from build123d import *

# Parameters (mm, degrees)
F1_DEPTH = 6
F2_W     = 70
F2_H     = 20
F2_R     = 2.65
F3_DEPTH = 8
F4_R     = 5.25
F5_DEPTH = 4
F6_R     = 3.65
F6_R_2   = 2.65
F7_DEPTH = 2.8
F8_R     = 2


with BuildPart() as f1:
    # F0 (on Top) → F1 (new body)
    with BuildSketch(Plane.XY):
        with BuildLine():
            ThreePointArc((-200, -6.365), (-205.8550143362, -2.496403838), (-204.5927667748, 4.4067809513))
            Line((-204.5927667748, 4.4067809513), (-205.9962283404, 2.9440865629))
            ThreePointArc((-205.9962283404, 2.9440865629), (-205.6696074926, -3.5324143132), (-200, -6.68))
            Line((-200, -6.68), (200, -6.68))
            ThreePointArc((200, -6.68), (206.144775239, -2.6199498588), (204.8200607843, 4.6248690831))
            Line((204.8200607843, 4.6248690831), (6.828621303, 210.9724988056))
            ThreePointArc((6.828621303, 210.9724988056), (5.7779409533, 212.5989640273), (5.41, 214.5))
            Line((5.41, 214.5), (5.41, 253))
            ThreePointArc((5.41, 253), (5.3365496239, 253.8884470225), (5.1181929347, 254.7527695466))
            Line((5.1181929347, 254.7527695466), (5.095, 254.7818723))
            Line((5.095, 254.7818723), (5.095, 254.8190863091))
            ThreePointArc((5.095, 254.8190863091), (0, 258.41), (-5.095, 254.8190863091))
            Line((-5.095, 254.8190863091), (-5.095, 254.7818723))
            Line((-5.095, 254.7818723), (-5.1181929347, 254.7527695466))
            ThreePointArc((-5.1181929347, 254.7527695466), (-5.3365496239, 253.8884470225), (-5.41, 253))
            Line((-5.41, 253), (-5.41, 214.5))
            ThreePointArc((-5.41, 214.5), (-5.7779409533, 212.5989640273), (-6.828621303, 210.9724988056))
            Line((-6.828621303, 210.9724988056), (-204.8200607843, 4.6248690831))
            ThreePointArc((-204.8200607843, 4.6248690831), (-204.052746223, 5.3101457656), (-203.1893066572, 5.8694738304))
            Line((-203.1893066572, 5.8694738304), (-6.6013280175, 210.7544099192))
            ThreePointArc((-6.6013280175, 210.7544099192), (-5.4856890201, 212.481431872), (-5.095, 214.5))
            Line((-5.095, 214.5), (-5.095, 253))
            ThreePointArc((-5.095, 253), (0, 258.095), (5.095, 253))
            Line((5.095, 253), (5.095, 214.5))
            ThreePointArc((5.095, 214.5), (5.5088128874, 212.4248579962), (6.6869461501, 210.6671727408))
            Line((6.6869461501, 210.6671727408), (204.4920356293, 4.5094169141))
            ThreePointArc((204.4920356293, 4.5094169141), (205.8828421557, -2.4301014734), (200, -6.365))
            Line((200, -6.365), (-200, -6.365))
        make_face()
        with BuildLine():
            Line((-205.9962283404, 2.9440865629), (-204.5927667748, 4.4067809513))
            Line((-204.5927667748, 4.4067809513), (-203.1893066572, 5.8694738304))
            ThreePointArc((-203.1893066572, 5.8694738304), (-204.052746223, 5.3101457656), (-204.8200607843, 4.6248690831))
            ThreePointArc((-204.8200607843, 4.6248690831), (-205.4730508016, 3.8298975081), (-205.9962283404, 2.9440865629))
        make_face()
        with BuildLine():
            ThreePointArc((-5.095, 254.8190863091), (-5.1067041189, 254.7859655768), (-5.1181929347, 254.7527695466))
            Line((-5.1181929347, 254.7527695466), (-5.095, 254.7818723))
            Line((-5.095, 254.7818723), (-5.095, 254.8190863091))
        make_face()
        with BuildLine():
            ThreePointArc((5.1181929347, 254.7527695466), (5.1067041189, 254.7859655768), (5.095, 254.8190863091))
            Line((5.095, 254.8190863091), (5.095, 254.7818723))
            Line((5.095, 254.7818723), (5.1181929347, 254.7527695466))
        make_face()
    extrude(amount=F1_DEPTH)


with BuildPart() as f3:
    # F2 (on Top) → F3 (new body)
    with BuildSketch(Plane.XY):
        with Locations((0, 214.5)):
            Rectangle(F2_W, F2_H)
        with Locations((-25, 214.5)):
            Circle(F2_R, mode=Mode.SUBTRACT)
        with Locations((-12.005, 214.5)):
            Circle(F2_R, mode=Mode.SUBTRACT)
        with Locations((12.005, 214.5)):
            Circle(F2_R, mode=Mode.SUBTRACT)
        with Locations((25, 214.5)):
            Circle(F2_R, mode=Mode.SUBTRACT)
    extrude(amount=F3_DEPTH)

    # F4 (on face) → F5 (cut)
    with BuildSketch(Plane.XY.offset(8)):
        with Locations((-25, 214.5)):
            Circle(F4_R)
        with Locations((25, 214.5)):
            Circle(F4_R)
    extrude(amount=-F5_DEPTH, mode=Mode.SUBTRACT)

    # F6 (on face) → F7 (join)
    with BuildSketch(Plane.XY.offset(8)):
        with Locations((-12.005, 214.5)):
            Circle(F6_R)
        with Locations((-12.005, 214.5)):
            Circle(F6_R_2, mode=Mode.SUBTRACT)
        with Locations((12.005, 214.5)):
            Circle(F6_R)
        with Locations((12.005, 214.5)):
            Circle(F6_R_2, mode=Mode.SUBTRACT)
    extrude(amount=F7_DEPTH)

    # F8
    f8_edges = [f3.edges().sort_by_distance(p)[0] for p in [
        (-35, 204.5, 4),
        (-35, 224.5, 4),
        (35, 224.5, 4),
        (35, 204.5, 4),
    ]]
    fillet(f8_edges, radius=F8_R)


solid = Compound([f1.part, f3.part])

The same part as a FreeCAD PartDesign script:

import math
import FreeCAD as App
import Part
import Sketcher
Q = App.Units.Quantity


def edges_at(feature, points):
    """Names of the edges that pass closest to the given points."""
    edges = feature.Shape.Edges
    near = lambda p: min(range(len(edges)), key=lambda i: edges[i].distToShape(Part.Vertex(*p))[0])
    return sorted({f"Edge{near(p) + 1}" for p in points})

doc = App.newDocument("Part")
body = doc.addObject("PartDesign::Body", "Body")

# Sketch on XY plane
sketch1 = body.newObject("Sketcher::SketchObject", "Sketch")
sketch1.AttachmentSupport = (doc.getObject("XY_Plane"), [""])
sketch1.MapMode = "FlatFace"
sketch1.addGeometry(Part.ArcOfCircle(Part.Circle(App.Vector(-200, 0, 0), App.Vector(0, 0, 1), 6.68), math.radians(154), math.radians(270)), False)
sketch1.addGeometry(Part.LineSegment(App.Vector(-200, -6.68, 0), App.Vector(200, -6.68, 0)), False)
sketch1.addGeometry(Part.ArcOfCircle(Part.Circle(App.Vector(200, 0, 0), App.Vector(0, 0, 1), 6.68), math.radians(-90), math.radians(44)), False)
sketch1.addGeometry(Part.LineSegment(App.Vector(204.82, 4.62, 0), App.Vector(6.83, 210.97, 0)), False)
sketch1.addGeometry(Part.ArcOfCircle(Part.Circle(App.Vector(10.51, 214.5, 0), App.Vector(0, 0, 1), 5.09), math.radians(180), math.radians(224)), False)
sketch1.addGeometry(Part.LineSegment(App.Vector(5.41, 214.5, 0), App.Vector(5.41, 253, 0)), False)
sketch1.addGeometry(Part.ArcOfCircle(Part.Circle(App.Vector(0, 253, 0), App.Vector(0, 0, 1), 5.41), math.radians(0), math.radians(18.9)), False)
sketch1.addGeometry(Part.ArcOfCircle(Part.Circle(App.Vector(0, 253, 0), App.Vector(0, 0, 1), 5.41), math.radians(18.9), math.radians(19.65)), False)
sketch1.addGeometry(Part.ArcOfCircle(Part.Circle(App.Vector(0, 253, 0), App.Vector(0, 0, 1), 5.41), math.radians(20), math.radians(160)), False)
sketch1.addGeometry(Part.ArcOfCircle(Part.Circle(App.Vector(0, 253, 0), App.Vector(0, 0, 1), 5.41), math.radians(160.35), math.radians(161.1)), False)
sketch1.addGeometry(Part.ArcOfCircle(Part.Circle(App.Vector(0, 253, 0), App.Vector(0, 0, 1), 5.41), math.radians(161.1), math.radians(180)), False)
sketch1.addGeometry(Part.LineSegment(App.Vector(-5.41, 253, 0), App.Vector(-5.41, 214.5, 0)), False)
sketch1.addGeometry(Part.ArcOfCircle(Part.Circle(App.Vector(-10.51, 214.5, 0), App.Vector(0, 0, 1), 5.09), math.radians(-44), math.radians(0)), False)
sketch1.addGeometry(Part.LineSegment(App.Vector(-6.83, 210.97, 0), App.Vector(-204.82, 4.62, 0)), False)
sketch1.addGeometry(Part.ArcOfCircle(Part.Circle(App.Vector(-200, 0, 0), App.Vector(0, 0, 1), 6.68), math.radians(136.18), math.radians(153.85)), False)
sketch1.addGeometry(Part.ArcOfCircle(Part.Circle(App.Vector(-200, 0, 0), App.Vector(0, 0, 1), 6.37), math.radians(136), math.radians(270)), False)
sketch1.addGeometry(Part.LineSegment(App.Vector(-204.59, 4.41, 0), App.Vector(-203.19, 5.87, 0)), False)
sketch1.addGeometry(Part.LineSegment(App.Vector(-203.19, 5.87, 0), App.Vector(-6.6, 210.75, 0)), False)
sketch1.addGeometry(Part.ArcOfCircle(Part.Circle(App.Vector(-10.51, 214.5, 0), App.Vector(0, 0, 1), 5.41), math.radians(-44), math.radians(0)), False)
sketch1.addGeometry(Part.LineSegment(App.Vector(-5.09, 214.5, 0), App.Vector(-5.09, 253, 0)), False)
sketch1.addGeometry(Part.ArcOfCircle(Part.Circle(App.Vector(0, 253, 0), App.Vector(0, 0, 1), 5.09), math.radians(0), math.radians(180)), False)
sketch1.addGeometry(Part.LineSegment(App.Vector(5.09, 253, 0), App.Vector(5.09, 214.5, 0)), False)
sketch1.addGeometry(Part.ArcOfCircle(Part.Circle(App.Vector(10.51, 214.5, 0), App.Vector(0, 0, 1), 5.41), math.radians(180), math.radians(225)), False)
sketch1.addGeometry(Part.LineSegment(App.Vector(6.69, 210.67, 0), App.Vector(204.49, 4.51, 0)), False)
sketch1.addGeometry(Part.ArcOfCircle(Part.Circle(App.Vector(200, 0, 0), App.Vector(0, 0, 1), 6.37), math.radians(-90), math.radians(45)), False)
sketch1.addGeometry(Part.LineSegment(App.Vector(200, -6.37, 0), App.Vector(-200, -6.37, 0)), False)
sketch1.addConstraint(Sketcher.Constraint("Tangent", 0, 2, 1, 1))
sketch1.addConstraint(Sketcher.Constraint("Tangent", 1, 2, 2, 1))
sketch1.addConstraint(Sketcher.Constraint("Tangent", 2, 2, 3, 1))
sketch1.addConstraint(Sketcher.Constraint("Tangent", 3, 2, 4, 2))
sketch1.addConstraint(Sketcher.Constraint("Tangent", 4, 1, 5, 1))
sketch1.addConstraint(Sketcher.Constraint("Tangent", 5, 2, 6, 1))
sketch1.addConstraint(Sketcher.Constraint("Tangent", 6, 2, 7, 1))
sketch1.addConstraint(Sketcher.Constraint("Tangent", 7, 2, 8, 1))
sketch1.addConstraint(Sketcher.Constraint("Tangent", 8, 2, 9, 1))
sketch1.addConstraint(Sketcher.Constraint("Tangent", 9, 2, 10, 1))
sketch1.addConstraint(Sketcher.Constraint("Tangent", 10, 2, 11, 1))
sketch1.addConstraint(Sketcher.Constraint("Tangent", 11, 2, 12, 2))
sketch1.addConstraint(Sketcher.Constraint("Tangent", 12, 1, 13, 1))
sketch1.addConstraint(Sketcher.Constraint("Tangent", 13, 2, 14, 1))
sketch1.addConstraint(Sketcher.Constraint("Tangent", 14, 2, 0, 1))
sketch1.addConstraint(Sketcher.Constraint("Tangent", 15, 1, 16, 1))
sketch1.addConstraint(Sketcher.Constraint("Coincident", 16, 2, 17, 1))
sketch1.addConstraint(Sketcher.Constraint("Tangent", 17, 2, 18, 1))
sketch1.addConstraint(Sketcher.Constraint("Tangent", 18, 2, 19, 1))
sketch1.addConstraint(Sketcher.Constraint("Tangent", 19, 2, 20, 2))
sketch1.addConstraint(Sketcher.Constraint("Tangent", 20, 1, 21, 1))
sketch1.addConstraint(Sketcher.Constraint("Tangent", 21, 2, 22, 1))
sketch1.addConstraint(Sketcher.Constraint("Coincident", 22, 2, 23, 1))
sketch1.addConstraint(Sketcher.Constraint("Coincident", 23, 2, 24, 2))
sketch1.addConstraint(Sketcher.Constraint("Tangent", 24, 1, 25, 1))
sketch1.addConstraint(Sketcher.Constraint("Tangent", 25, 2, 15, 2))
sketch1.addConstraint(Sketcher.Constraint("Horizontal", 1))
sketch1.addConstraint(Sketcher.Constraint("Vertical", 5))
sketch1.addConstraint(Sketcher.Constraint("Vertical", 11))
sketch1.addConstraint(Sketcher.Constraint("Vertical", 19))
sketch1.addConstraint(Sketcher.Constraint("Vertical", 21))
sketch1.addConstraint(Sketcher.Constraint("Horizontal", 25))
sketch1.addConstraint(Sketcher.Constraint("Coincident", 8, 3, 6, 3))
sketch1.addConstraint(Sketcher.Constraint("Coincident", 10, 3, 6, 3))
sketch1.addConstraint(Sketcher.Constraint("Coincident", 15, 3, 0, 3))
sketch1.addConstraint(Sketcher.Constraint("Coincident", 18, 3, 12, 3))
sketch1.addConstraint(Sketcher.Constraint("Coincident", 20, 3, 6, 3))
sketch1.addConstraint(Sketcher.Constraint("Coincident", 22, 3, 4, 3))
sketch1.addConstraint(Sketcher.Constraint("Coincident", 24, 3, 2, 3))
sketch1.addConstraint(Sketcher.Constraint("Equal", 0, 2))
sketch1.addConstraint(Sketcher.Constraint("Equal", 4, 12))
sketch1.addConstraint(Sketcher.Constraint("Equal", 2, 14))
sketch1.addConstraint(Sketcher.Constraint("Equal", 10, 18))
sketch1.addConstraint(Sketcher.Constraint("Symmetric", 0, 3, 2, 3, -1, 1))
sketch1.addConstraint(Sketcher.Constraint("Symmetric", 4, 3, 12, 3, -2))
sketch1.addConstraint(Sketcher.Constraint("Parallel", 13, 16))
sketch1.addConstraint(Sketcher.Constraint("Parallel", 16, 17))
sketch1.addConstraint(Sketcher.Constraint("Horizontal", 7, 2, 8, 2))
sketch1.addConstraint(Sketcher.Constraint("Horizontal", 6, 2, 9, 2))
sketch1.addConstraint(Sketcher.Constraint("Vertical", 8, 2, 18, 2))
sketch1.addConstraint(Sketcher.Constraint("DistanceX", 1, 1, 1, 2, Q("400 mm")))
sketch1.addConstraint(Sketcher.Constraint("Radius", 0, Q("6.68 mm")))
sketch1.addConstraint(Sketcher.Constraint("Radius", 6, Q("5.41 mm")))
sketch1.addConstraint(Sketcher.Constraint("DistanceY", 5, 1, 5, 2, Q("38.5 mm")))
sketch1.addConstraint(Sketcher.Constraint("DistanceY", -1, 1, 6, 3, Q("253 mm")))
sketch1.addConstraint(Sketcher.Constraint("Radius", 4, Q("5.095 mm")))
sketch1.addConstraint(Sketcher.Constraint("Distance", 16, Q("2.027109 mm")))
sketch1.addConstraint(Sketcher.Constraint("Distance", 23, Q("285.705922 mm")))
sketch1.addConstraint(Sketcher.Constraint("DistanceY", -1, 1, 6, 2, Q("254.75277 mm")))
sketch1.addConstraint(Sketcher.Constraint("DistanceX", 14, 2, -1, 1, Q("205.996228 mm")))
sketch1.addConstraint(Sketcher.Constraint("DistanceX", -1, 1, 22, 2, Q("6.686946 mm")))
pad1 = body.newObject("PartDesign::Pad", "Pad")
pad1.Profile = sketch1
pad1.Length = 6
body2 = doc.addObject("PartDesign::Body", "Body001")

# Sketch on XY plane
sketch2 = body2.newObject("Sketcher::SketchObject", "Sketch001")
sketch2.AttachmentSupport = (doc.getObject("XY_Plane001"), [""])
sketch2.MapMode = "FlatFace"
sketch2.addGeometry(Part.LineSegment(App.Vector(-35, 224.5, 0), App.Vector(-35, 204.5, 0)), False)
sketch2.addGeometry(Part.LineSegment(App.Vector(-35, 204.5, 0), App.Vector(35, 204.5, 0)), False)
sketch2.addGeometry(Part.LineSegment(App.Vector(35, 204.5, 0), App.Vector(35, 224.5, 0)), False)
sketch2.addGeometry(Part.LineSegment(App.Vector(35, 224.5, 0), App.Vector(-35, 224.5, 0)), False)
sketch2.addGeometry(Part.Circle(App.Vector(-25, 214.5, 0), App.Vector(0, 0, 1), 2.6), False)
sketch2.addGeometry(Part.Circle(App.Vector(-12, 214.5, 0), App.Vector(0, 0, 1), 2.6), False)
sketch2.addGeometry(Part.Circle(App.Vector(12, 214.5, 0), App.Vector(0, 0, 1), 2.6), False)
sketch2.addGeometry(Part.Circle(App.Vector(25, 214.5, 0), App.Vector(0, 0, 1), 2.6), False)
sketch2.addConstraint(Sketcher.Constraint("Coincident", 0, 2, 1, 1))
sketch2.addConstraint(Sketcher.Constraint("Coincident", 1, 2, 2, 1))
sketch2.addConstraint(Sketcher.Constraint("Coincident", 2, 2, 3, 1))
sketch2.addConstraint(Sketcher.Constraint("Coincident", 3, 2, 0, 1))
sketch2.addConstraint(Sketcher.Constraint("Vertical", 0))
sketch2.addConstraint(Sketcher.Constraint("Horizontal", 1))
sketch2.addConstraint(Sketcher.Constraint("Vertical", 2))
sketch2.addConstraint(Sketcher.Constraint("Horizontal", 3))
sketch2.addConstraint(Sketcher.Constraint("Equal", 4, 5))
sketch2.addConstraint(Sketcher.Constraint("Equal", 5, 6))
sketch2.addConstraint(Sketcher.Constraint("Equal", 6, 7))
sketch2.addConstraint(Sketcher.Constraint("Symmetric", 5, 3, 6, 3, -2))
sketch2.addConstraint(Sketcher.Constraint("Symmetric", 4, 3, 7, 3, -2))
sketch2.addConstraint(Sketcher.Constraint("Horizontal", 4, 3, 5, 3))
sketch2.addConstraint(Sketcher.Constraint("Diameter", 4, Q("5.3 mm")))
sketch2.addConstraint(Sketcher.Constraint("DistanceX", 1, 1, 1, 2, Q("70 mm")))
sketch2.addConstraint(Sketcher.Constraint("DistanceY", 0, 2, 0, 1, Q("20 mm")))
sketch2.addConstraint(Sketcher.Constraint("DistanceX", 4, 3, -1, 1, Q("25 mm")))
sketch2.addConstraint(Sketcher.Constraint("DistanceX", 0, 2, -1, 1, Q("35 mm")))
sketch2.addConstraint(Sketcher.Constraint("DistanceY", 0, 2, 4, 3, Q("10 mm")))
sketch2.addConstraint(Sketcher.Constraint("DistanceY", -1, 1, 4, 3, Q("214.5 mm")))
sketch2.addConstraint(Sketcher.Constraint("DistanceX", 5, 3, 6, 3, Q("24.01 mm")))
pad2 = body2.newObject("PartDesign::Pad", "Pad001")
pad2.Profile = sketch2
pad2.Length = 8

# Sketch on XY plane
sketch3 = body2.newObject("Sketcher::SketchObject", "Sketch002")
sketch3.AttachmentSupport = (doc.getObject("XY_Plane001"), [""])
sketch3.MapMode = "FlatFace"
sketch3.AttachmentOffset = App.Placement(App.Vector(0, 0, 8), App.Rotation())
sketch3.addGeometry(Part.Circle(App.Vector(-25, 214, 0), App.Vector(0, 0, 1), 5), False)
sketch3.addGeometry(Part.Circle(App.Vector(25, 214, 0), App.Vector(0, 0, 1), 5), False)
sketch3.addConstraint(Sketcher.Constraint("Equal", 0, 1))
sketch3.addConstraint(Sketcher.Constraint("Symmetric", 0, 3, 1, 3, -2))
sketch3.addConstraint(Sketcher.Constraint("Diameter", 0, Q("10.5 mm")))
sketch3.addConstraint(Sketcher.Constraint("DistanceX", 0, 3, -1, 1, Q("25 mm")))
sketch3.addConstraint(Sketcher.Constraint("DistanceY", -1, 1, 0, 3, Q("214.5 mm")))
pocket1 = body2.newObject("PartDesign::Pocket", "Pocket")
pocket1.Profile = sketch3
pocket1.Length = 4

# Sketch on XY plane
sketch4 = body2.newObject("Sketcher::SketchObject", "Sketch003")
sketch4.AttachmentSupport = (doc.getObject("XY_Plane001"), [""])
sketch4.MapMode = "FlatFace"
sketch4.AttachmentOffset = App.Placement(App.Vector(0, 0, 8), App.Rotation())
sketch4.addGeometry(Part.Circle(App.Vector(-12, 214.5, 0), App.Vector(0, 0, 1), 3.6), False)
sketch4.addGeometry(Part.Circle(App.Vector(-12, 214.5, 0), App.Vector(0, 0, 1), 2.6), False)
sketch4.addGeometry(Part.Circle(App.Vector(12, 214.5, 0), App.Vector(0, 0, 1), 3.6), False)
sketch4.addGeometry(Part.Circle(App.Vector(12, 214.5, 0), App.Vector(0, 0, 1), 2.6), False)
sketch4.addConstraint(Sketcher.Constraint("Coincident", 1, 3, 0, 3))
sketch4.addConstraint(Sketcher.Constraint("Coincident", 3, 3, 2, 3))
sketch4.addConstraint(Sketcher.Constraint("Equal", 0, 2))
sketch4.addConstraint(Sketcher.Constraint("Equal", 1, 3))
sketch4.addConstraint(Sketcher.Constraint("Symmetric", 0, 3, 2, 3, -2))
sketch4.addConstraint(Sketcher.Constraint("Diameter", 0, Q("7.3 mm")))
sketch4.addConstraint(Sketcher.Constraint("Diameter", 1, Q("5.3 mm")))
sketch4.addConstraint(Sketcher.Constraint("DistanceY", -1, 1, 0, 3, Q("214.5 mm")))
sketch4.addConstraint(Sketcher.Constraint("DistanceX", 0, 3, 2, 3, Q("24.01 mm")))
pad3 = body2.newObject("PartDesign::Pad", "Pad002")
pad3.Profile = sketch4
pad3.Length = 2.8
doc.recompute()

fillet = body2.newObject("PartDesign::Fillet", "Fillet")
fillet.Base = (pad3, edges_at(pad3, [
    (-35, 204.5, 4),
    (-35, 224.5, 4),
    (35, 224.5, 4),
    (35, 204.5, 4),
]))
fillet.Radius = 2

doc.recompute()
